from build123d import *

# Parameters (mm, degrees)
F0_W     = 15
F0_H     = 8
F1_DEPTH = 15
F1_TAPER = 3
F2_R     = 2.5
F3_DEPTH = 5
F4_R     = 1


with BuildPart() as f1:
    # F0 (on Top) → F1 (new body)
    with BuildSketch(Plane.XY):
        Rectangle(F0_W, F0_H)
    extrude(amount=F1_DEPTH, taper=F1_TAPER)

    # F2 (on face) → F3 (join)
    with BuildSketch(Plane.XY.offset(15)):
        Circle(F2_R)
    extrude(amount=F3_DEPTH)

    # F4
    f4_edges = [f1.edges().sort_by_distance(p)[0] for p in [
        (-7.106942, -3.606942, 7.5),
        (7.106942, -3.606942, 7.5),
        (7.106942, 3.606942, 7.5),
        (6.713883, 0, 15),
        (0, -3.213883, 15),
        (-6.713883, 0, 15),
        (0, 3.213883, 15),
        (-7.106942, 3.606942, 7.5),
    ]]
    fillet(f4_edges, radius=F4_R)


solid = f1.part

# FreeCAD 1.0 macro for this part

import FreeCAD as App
import Part
import Sketcher


def edges_at(feature, points):
    """Names of the edges that pass closest to the given points."""
    edges = feature.Shape.Edges
    near = lambda p: min(range(len(edges)), key=lambda i: edges[i].distToShape(Part.Vertex(*p))[0])
    return sorted({f"Edge{near(p) + 1}" for p in points})

doc = App.newDocument("Part")
body = doc.addObject("PartDesign::Body", "Body")

sketch1 = body.newObject("Sketcher::SketchObject", "Sketch")
sketch1.AttachmentSupport = (doc.getObject("XY_Plane"), [""])
sketch1.MapMode = "FlatFace"
sketch1.addGeometry([
    Part.LineSegment(App.Vector(-8, 4, 0), App.Vector(-8, -4, 0)),
    Part.LineSegment(App.Vector(-8, -4, 0), App.Vector(8, -4, 0)),
    Part.LineSegment(App.Vector(8, -4, 0), App.Vector(8, 4, 0)),
    Part.LineSegment(App.Vector(8, 4, 0), App.Vector(-8, 4, 0)),
], False)
sketch1.addConstraint([
    Sketcher.Constraint("Coincident", 0, 2, 1, 1),
    Sketcher.Constraint("Coincident", 1, 2, 2, 1),
    Sketcher.Constraint("Coincident", 2, 2, 3, 1),
    Sketcher.Constraint("Coincident", 3, 2, 0, 1),
    Sketcher.Constraint("Vertical", 0),
    Sketcher.Constraint("Horizontal", 1),
    Sketcher.Constraint("Vertical", 2),
    Sketcher.Constraint("Horizontal", 3),
    Sketcher.Constraint("Symmetric", 0, 2, 2, 2, -1, 1),
    Sketcher.Constraint("DistanceX", 1, 1, 1, 2, 15.0),
    Sketcher.Constraint("DistanceY", 0, 2, 0, 1, 8.0),
])
pad1 = body.newObject("PartDesign::Pad", "Pad")
pad1.Profile = sketch1
pad1.Length = 15
pad1.TaperAngle = -3

sketch2 = body.newObject("Sketcher::SketchObject", "Sketch001")
sketch2.AttachmentSupport = (doc.getObject("XY_Plane"), [""])
sketch2.MapMode = "FlatFace"
sketch2.AttachmentOffset = App.Placement(App.Vector(0, 0, 15), App.Rotation())
sketch2.addGeometry(Part.Circle(App.Vector(0, 0, 0), App.Vector(0, 0, 1), 2.5), False)
sketch2.addConstraint([
    Sketcher.Constraint("Coincident", 0, 3, -1, 1),
    Sketcher.Constraint("Diameter", 0, 5.0),
])
pad2 = body.newObject("PartDesign::Pad", "Pad001")
pad2.Profile = sketch2
pad2.Length = 5
doc.recompute()

fillet = body.newObject("PartDesign::Fillet", "Fillet")
fillet.Base = (pad2, edges_at(pad2, [
    (-7.107, -3.607, 7.5),
    (7.107, -3.607, 7.5),
    (7.107, 3.607, 7.5),
    (6.714, 0, 15),
    (0, -3.214, 15),
    (-6.714, 0, 15),
    (0, 3.214, 15),
    (-7.107, 3.607, 7.5),
]))
fillet.Radius = 1

doc.recompute()
